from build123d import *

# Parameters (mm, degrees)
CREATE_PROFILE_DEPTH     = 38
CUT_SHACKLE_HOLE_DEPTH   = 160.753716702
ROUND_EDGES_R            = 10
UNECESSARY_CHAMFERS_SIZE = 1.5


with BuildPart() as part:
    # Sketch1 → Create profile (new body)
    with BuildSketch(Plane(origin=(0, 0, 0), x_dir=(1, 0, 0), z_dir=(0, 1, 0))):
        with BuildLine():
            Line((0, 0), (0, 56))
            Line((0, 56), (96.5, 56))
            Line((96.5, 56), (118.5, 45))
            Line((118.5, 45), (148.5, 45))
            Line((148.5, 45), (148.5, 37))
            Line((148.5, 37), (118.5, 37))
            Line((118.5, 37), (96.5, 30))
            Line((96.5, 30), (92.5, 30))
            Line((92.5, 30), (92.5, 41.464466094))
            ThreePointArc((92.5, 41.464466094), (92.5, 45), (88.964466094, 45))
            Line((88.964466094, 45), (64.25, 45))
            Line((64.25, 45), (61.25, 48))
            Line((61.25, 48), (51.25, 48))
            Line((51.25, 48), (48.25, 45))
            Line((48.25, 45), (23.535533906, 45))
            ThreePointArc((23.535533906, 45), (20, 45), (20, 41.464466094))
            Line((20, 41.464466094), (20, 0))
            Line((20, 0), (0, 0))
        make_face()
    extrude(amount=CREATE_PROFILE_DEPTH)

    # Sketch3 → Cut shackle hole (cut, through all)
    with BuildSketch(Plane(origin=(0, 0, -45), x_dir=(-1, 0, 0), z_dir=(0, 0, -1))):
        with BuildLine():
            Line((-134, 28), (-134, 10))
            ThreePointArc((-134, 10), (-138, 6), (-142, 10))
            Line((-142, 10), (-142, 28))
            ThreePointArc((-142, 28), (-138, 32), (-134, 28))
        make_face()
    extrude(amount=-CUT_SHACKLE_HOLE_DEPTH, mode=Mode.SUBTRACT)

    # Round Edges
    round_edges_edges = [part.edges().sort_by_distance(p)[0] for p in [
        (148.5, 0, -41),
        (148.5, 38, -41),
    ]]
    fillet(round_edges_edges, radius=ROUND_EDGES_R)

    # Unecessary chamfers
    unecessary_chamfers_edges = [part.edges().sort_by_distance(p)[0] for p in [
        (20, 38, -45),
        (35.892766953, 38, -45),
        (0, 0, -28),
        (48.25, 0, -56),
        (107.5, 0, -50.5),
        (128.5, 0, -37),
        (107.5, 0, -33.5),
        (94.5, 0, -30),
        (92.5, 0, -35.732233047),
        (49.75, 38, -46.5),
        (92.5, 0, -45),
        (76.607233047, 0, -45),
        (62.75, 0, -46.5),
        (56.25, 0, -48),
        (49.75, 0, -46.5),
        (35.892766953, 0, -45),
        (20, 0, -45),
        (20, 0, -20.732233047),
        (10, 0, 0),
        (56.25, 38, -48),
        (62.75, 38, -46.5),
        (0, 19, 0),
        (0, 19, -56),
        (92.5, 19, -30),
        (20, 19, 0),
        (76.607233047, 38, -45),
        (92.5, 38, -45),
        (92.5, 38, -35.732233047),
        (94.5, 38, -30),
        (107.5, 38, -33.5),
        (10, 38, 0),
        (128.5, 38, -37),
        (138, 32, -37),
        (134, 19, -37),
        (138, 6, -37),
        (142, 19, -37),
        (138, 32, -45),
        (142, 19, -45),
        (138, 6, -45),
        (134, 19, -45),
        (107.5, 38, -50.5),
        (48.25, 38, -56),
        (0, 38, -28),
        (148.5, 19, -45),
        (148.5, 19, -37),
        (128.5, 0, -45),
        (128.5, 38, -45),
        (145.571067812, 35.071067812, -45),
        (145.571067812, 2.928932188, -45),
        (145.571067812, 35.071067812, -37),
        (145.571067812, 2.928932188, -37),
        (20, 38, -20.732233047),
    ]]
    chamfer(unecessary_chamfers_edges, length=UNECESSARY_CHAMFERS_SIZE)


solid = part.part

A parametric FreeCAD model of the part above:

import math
import FreeCAD as App
import Part
import Sketcher
from FreeCAD import Vector


def edges_at(feature, points):
    """Names of the edges that pass closest to the given points."""
    edges = feature.Shape.Edges
    near = lambda p: min(range(len(edges)), key=lambda i: edges[i].distToShape(Part.Vertex(*p))[0])
    return sorted({f"Edge{near(p) + 1}" for p in points})

doc = App.newDocument("Part")
body = doc.addObject("PartDesign::Body", "Body")

# Sketch on XZ plane
sketch1 = body.newObject("Sketcher::SketchObject", "Sketch")
sketch1.AttachmentSupport = (doc.getObject("XZ_Plane"), [""])
sketch1.MapMode = "FlatFace"
sketch1.addGeometry([
    Part.LineSegment(Vector(0, -56, 0), Vector(0, 0, 0)),  # 0
    Part.LineSegment(Vector(0, 0, 0), Vector(20, 0, 0)),  # 1
    Part.LineSegment(Vector(20, 0, 0), Vector(20, -41.5, 0)),  # 2
    Part.ArcOfCircle(Part.Circle(Vector(21.8, -43.2, 0), Vector(0, 0, 1), 2.5), math.radians(135), math.radians(315)),  # 3
    Part.LineSegment(Vector(23.5, -45, 0), Vector(48.2, -45, 0)),  # 4
    Part.LineSegment(Vector(48.2, -45, 0), Vector(51.2, -48, 0)),  # 5
    Part.LineSegment(Vector(51.2, -48, 0), Vector(61.2, -48, 0)),  # 6
    Part.LineSegment(Vector(61.2, -48, 0), Vector(64.2, -45, 0)),  # 7
    Part.LineSegment(Vector(64.2, -45, 0), Vector(89, -45, 0)),  # 8
    Part.ArcOfCircle(Part.Circle(Vector(90.7, -43.2, 0), Vector(0, 0, 1), 2.5), math.radians(-135), math.radians(45)),  # 9
    Part.LineSegment(Vector(92.5, -41.5, 0), Vector(92.5, -30, 0)),  # 10
    Part.LineSegment(Vector(92.5, -30, 0), Vector(96.5, -30, 0)),  # 11
    Part.LineSegment(Vector(96.5, -30, 0), Vector(118.5, -37, 0)),  # 12
    Part.LineSegment(Vector(118.5, -37, 0), Vector(148.5, -37, 0)),  # 13
    Part.LineSegment(Vector(148.5, -37, 0), Vector(148.5, -45, 0)),  # 14
    Part.LineSegment(Vector(148.5, -45, 0), Vector(118.5, -45, 0)),  # 15
    Part.LineSegment(Vector(118.5, -45, 0), Vector(96.5, -56, 0)),  # 16
    Part.LineSegment(Vector(96.5, -56, 0), Vector(0, -56, 0)),  # 17
], False)
sketch1.addConstraint([
    Sketcher.Constraint("Coincident", 0, 2, 1, 1),
    Sketcher.Constraint("Coincident", 1, 2, 2, 1),
    Sketcher.Constraint("Coincident", 2, 2, 3, 1),
    Sketcher.Constraint("Coincident", 3, 2, 4, 1),
    Sketcher.Constraint("Coincident", 4, 2, 5, 1),
    Sketcher.Constraint("Coincident", 5, 2, 6, 1),
    Sketcher.Constraint("Coincident", 6, 2, 7, 1),
    Sketcher.Constraint("Coincident", 7, 2, 8, 1),
    Sketcher.Constraint("Coincident", 8, 2, 9, 1),
    Sketcher.Constraint("Coincident", 9, 2, 10, 1),
    Sketcher.Constraint("Coincident", 10, 2, 11, 1),
    Sketcher.Constraint("Coincident", 11, 2, 12, 1),
    Sketcher.Constraint("Coincident", 12, 2, 13, 1),
    Sketcher.Constraint("Coincident", 13, 2, 14, 1),
    Sketcher.Constraint("Coincident", 14, 2, 15, 1),
    Sketcher.Constraint("Coincident", 15, 2, 16, 1),
    Sketcher.Constraint("Coincident", 16, 2, 17, 1),
    Sketcher.Constraint("Coincident", 17, 2, 0, 1),
    Sketcher.Constraint("Vertical", 0),
    Sketcher.Constraint("Horizontal", 1),
    Sketcher.Constraint("Vertical", 2),
    Sketcher.Constraint("Horizontal", 4),
    Sketcher.Constraint("Horizontal", 6),
    Sketcher.Constraint("Horizontal", 8),
    Sketcher.Constraint("Vertical", 10),
    Sketcher.Constraint("Horizontal", 11),
    Sketcher.Constraint("Horizontal", 13),
    Sketcher.Constraint("Vertical", 14),
    Sketcher.Constraint("Horizontal", 15),
    Sketcher.Constraint("Horizontal", 17),
    Sketcher.Constraint("Coincident", 0, 2, -1, 1),
    Sketcher.Constraint("Equal", 3, 9),
    Sketcher.Constraint("Perpendicular", 5, 7),
    Sketcher.Constraint("Horizontal", 3, 3, 9, 3),
    Sketcher.Constraint("Horizontal", 4, 2, 7, 2),
    Sketcher.Constraint("Horizontal", 2, 2, 9, 2),
    Sketcher.Constraint("Horizontal", 8, 2, 14, 2),
    Sketcher.Constraint("Vertical", 12, 2, 15, 2),
    Sketcher.Constraint("Vertical", 11, 2, 16, 2),
    Sketcher.Constraint("Equal", 4, 8),
    Sketcher.Constraint("Equal", 5, 7),
    Sketcher.Constraint("Radius", 3, 2.5),
    Sketcher.Constraint("DistanceX", 1, 1, 1, 2, 20.0),
    Sketcher.Constraint("DistanceX", 6, 1, 6, 2, 10.0),
    Sketcher.Constraint("DistanceX", 11, 1, 11, 2, 4.0),
    Sketcher.Constraint("DistanceX", 13, 1, 13, 2, 30.0),
    Sketcher.Constraint("DistanceY", 0, 1, 0, 2, 56.0),
    Sketcher.Constraint("DistanceY", 14, 2, 14, 1, 8.0),
    Sketcher.Constraint("DistanceX", 17, 2, 17, 1, 96.5),
    Sketcher.Constraint("DistanceY", 3, 2, -1, 1, 45.0),
    Sketcher.Constraint("DistanceY", 5, 2, -1, 1, 48.0),
    Sketcher.Constraint("DistanceY", 10, 2, -1, 1, 30.0),
    Sketcher.Constraint("DistanceX", 11, 2, 12, 2, 22.0),
    Sketcher.Constraint("DistanceX", 3, 2, 9, 3, 67.196699),
    Sketcher.Constraint("DistanceX", 4, 1, 4, 2, 24.714466),
])
pad1 = body.newObject("PartDesign::Pad", "Pad")
pad1.Profile = sketch1
pad1.Length = 38
pad1.Reversed = True

# Sketch on XY plane
sketch2 = body.newObject("Sketcher::SketchObject", "Sketch001")
sketch2.AttachmentSupport = (doc.getObject("XY_Plane"), [""])
sketch2.MapMode = "FlatFace"
sketch2.AttachmentOffset = App.Placement(Vector(0, 0, -45), App.Rotation())
sketch2.addGeometry([
    Part.LineSegment(Vector(134, 10, 0), Vector(134, 28, 0)),
    Part.ArcOfCircle(Part.Circle(Vector(138, 28, 0), Vector(0, 0, 1), 4), math.radians(0), math.radians(180)),
    Part.LineSegment(Vector(142, 28, 0), Vector(142, 10, 0)),
    Part.ArcOfCircle(Part.Circle(Vector(138, 10, 0), Vector(0, 0, 1), 4), math.radians(180), math.radians(360)),
], False)
sketch2.addConstraint([
    Sketcher.Constraint("Tangent", 0, 2, 1, 2),
    Sketcher.Constraint("Tangent", 1, 1, 2, 1),
    Sketcher.Constraint("Tangent", 2, 2, 3, 2),
    Sketcher.Constraint("Tangent", 3, 1, 0, 1),
    Sketcher.Constraint("Vertical", 0),
    Sketcher.Constraint("Vertical", 2),
    Sketcher.Constraint("Radius", 1, 4.0),
    Sketcher.Constraint("DistanceY", 0, 1, 0, 2, 18.0),
    Sketcher.Constraint("DistanceX", -1, 1, 1, 3, 138.0),
    Sketcher.Constraint("DistanceY", -1, 1, 1, 3, 28.0),
])
pocket1 = body.newObject("PartDesign::Pocket", "Pocket")
pocket1.Profile = sketch2
pocket1.Type = "ThroughAll"
pocket1.Reversed = True
doc.recompute()

fillet = body.newObject("PartDesign::Fillet", "Fillet")
fillet.Base = (pocket1, edges_at(pocket1, [(148.5, 0, -41), (148.5, 38, -41)]))
fillet.Radius = 10
doc.recompute()

chamfer = body.newObject("PartDesign::Chamfer", "Chamfer")
chamfer.Base = (fillet, edges_at(fillet, [
    (20, 38, -45),
    (35.893, 38, -45),
    (0, 0, -28),
    (48.25, 0, -56),
    (107.5, 0, -50.5),
    (128.5, 0, -37),
    (107.5, 0, -33.5),
    (94.5, 0, -30),
    (92.5, 0, -35.732),
    (49.75, 38, -46.5),
    (92.5, 0, -45),
    (76.607, 0, -45),
    (62.75, 0, -46.5),
    (56.25, 0, -48),
    (49.75, 0, -46.5),
    (35.893, 0, -45),
    (20, 0, -45),
    (20, 0, -20.732),
    (10, 0, 0),
    (56.25, 38, -48),
    (62.75, 38, -46.5),
    (0, 19, 0),
    (0, 19, -56),
    (92.5, 19, -30),
    (20, 19, 0),
    (76.607, 38, -45),
    (92.5, 38, -45),
    (92.5, 38, -35.732),
    (94.5, 38, -30),
    (107.5, 38, -33.5),
    (10, 38, 0),
    (128.5, 38, -37),
    (138, 32, -37),
    (134, 19, -37),
    (138, 6, -37),
    (142, 19, -37),
    (138, 32, -45),
    (142, 19, -45),
    (138, 6, -45),
    (134, 19, -45),
    (107.5, 38, -50.5),
    (48.25, 38, -56),
    (0, 38, -28),
    (148.5, 19, -45),
    (148.5, 19, -37),
    (128.5, 0, -45),
    (128.5, 38, -45),
    (145.571, 35.071, -45),
    (145.571, 2.929, -45),
    (145.571, 35.071, -37),
    (145.571, 2.929, -37),
    (20, 38, -20.732),
]))
chamfer.Size = 1.5

doc.recompute()
